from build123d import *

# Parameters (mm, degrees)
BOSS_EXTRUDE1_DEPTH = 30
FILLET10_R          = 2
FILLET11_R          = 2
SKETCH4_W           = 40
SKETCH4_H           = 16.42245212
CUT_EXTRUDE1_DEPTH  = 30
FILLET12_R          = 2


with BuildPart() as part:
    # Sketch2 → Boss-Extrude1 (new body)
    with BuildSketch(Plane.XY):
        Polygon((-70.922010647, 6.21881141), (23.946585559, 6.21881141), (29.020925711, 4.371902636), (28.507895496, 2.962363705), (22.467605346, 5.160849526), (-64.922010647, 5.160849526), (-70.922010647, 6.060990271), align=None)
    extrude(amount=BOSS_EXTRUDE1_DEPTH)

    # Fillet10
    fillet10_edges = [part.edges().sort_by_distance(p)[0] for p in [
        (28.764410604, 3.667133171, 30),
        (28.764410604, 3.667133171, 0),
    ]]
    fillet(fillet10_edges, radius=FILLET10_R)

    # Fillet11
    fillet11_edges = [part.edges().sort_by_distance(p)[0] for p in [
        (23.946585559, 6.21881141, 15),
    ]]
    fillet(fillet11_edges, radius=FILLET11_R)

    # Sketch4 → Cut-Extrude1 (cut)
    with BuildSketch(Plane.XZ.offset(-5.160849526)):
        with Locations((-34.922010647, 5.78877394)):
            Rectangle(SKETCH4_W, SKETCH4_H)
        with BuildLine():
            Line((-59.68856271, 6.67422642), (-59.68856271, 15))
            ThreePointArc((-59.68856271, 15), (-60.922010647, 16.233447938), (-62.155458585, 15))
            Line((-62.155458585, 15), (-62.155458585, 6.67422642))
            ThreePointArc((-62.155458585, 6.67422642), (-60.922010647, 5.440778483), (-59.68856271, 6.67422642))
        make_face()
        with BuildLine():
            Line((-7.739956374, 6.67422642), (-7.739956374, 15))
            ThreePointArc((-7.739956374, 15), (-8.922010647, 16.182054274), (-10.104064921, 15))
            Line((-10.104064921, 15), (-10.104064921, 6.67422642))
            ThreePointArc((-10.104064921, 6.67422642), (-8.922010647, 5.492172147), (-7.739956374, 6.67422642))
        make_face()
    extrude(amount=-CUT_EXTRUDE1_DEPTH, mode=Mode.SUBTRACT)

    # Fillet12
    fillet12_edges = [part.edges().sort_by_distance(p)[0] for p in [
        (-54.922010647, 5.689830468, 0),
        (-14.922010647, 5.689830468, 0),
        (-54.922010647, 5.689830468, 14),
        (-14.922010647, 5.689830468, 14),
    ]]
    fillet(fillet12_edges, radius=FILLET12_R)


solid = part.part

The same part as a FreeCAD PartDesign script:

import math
import FreeCAD as App
import Part
import Sketcher
Q = App.Units.Quantity


def edges_at(feature, points):
    """Names of the edges that pass closest to the given points."""
    edges = feature.Shape.Edges
    near = lambda p: min(range(len(edges)), key=lambda i: edges[i].distToShape(Part.Vertex(*p))[0])
    return sorted({f"Edge{near(p) + 1}" for p in points})

doc = App.newDocument("Part")
body = doc.addObject("PartDesign::Body", "Body")

sketch1 = doc.addObject("Sketcher::SketchObject", "Sketch")
body.addObject(sketch1)
sketch1.AttachmentSupport = (doc.XY_Plane, [""])
sketch1.MapMode = "FlatFace"
sketch1.addGeometry(Part.LineSegment(App.Vector(23.95, 6.22, 0), App.Vector(-70.92, 6.22, 0)), False)
sketch1.addGeometry(Part.LineSegment(App.Vector(-70.92, 6.22, 0), App.Vector(-70.92, 6.06, 0)), False)
sketch1.addGeometry(Part.LineSegment(App.Vector(-70.92, 6.06, 0), App.Vector(-64.92, 5.16, 0)), False)
sketch1.addGeometry(Part.LineSegment(App.Vector(-64.92, 5.16, 0), App.Vector(22.47, 5.16, 0)), False)
sketch1.addGeometry(Part.LineSegment(App.Vector(22.47, 5.16, 0), App.Vector(28.51, 2.96, 0)), False)
sketch1.addGeometry(Part.LineSegment(App.Vector(28.51, 2.96, 0), App.Vector(29.02, 4.37, 0)), False)
sketch1.addGeometry(Part.LineSegment(App.Vector(29.02, 4.37, 0), App.Vector(23.95, 6.22, 0)), False)
sketch1.addConstraint(Sketcher.Constraint("Coincident", 0, 2, 1, 1))
sketch1.addConstraint(Sketcher.Constraint("Coincident", 1, 2, 2, 1))
sketch1.addConstraint(Sketcher.Constraint("Coincident", 2, 2, 3, 1))
sketch1.addConstraint(Sketcher.Constraint("Coincident", 3, 2, 4, 1))
sketch1.addConstraint(Sketcher.Constraint("Coincident", 4, 2, 5, 1))
sketch1.addConstraint(Sketcher.Constraint("Coincident", 5, 2, 6, 1))
sketch1.addConstraint(Sketcher.Constraint("Coincident", 6, 2, 0, 1))
sketch1.addConstraint(Sketcher.Constraint("Horizontal", 0))
sketch1.addConstraint(Sketcher.Constraint("Vertical", 1))
sketch1.addConstraint(Sketcher.Constraint("Horizontal", 3))
sketch1.addConstraint(Sketcher.Constraint("Perpendicular", 4, 5))
sketch1.addConstraint(Sketcher.Constraint("Perpendicular", 5, 6))
sketch1.addConstraint(Sketcher.Constraint("Angle", 4, Q("-20 deg")))
sketch1.addConstraint(Sketcher.Constraint("DistanceX", 1, 2, 2, 2, Q("6 mm")))
sketch1.addConstraint(Sketcher.Constraint("Distance", 5, Q("1.5 mm")))
sketch1.addConstraint(Sketcher.Constraint("Distance", 6, Q("5.4 mm")))
sketch1.addConstraint(Sketcher.Constraint("DistanceY", 1, 2, 1, 1, Q("0.157821 mm")))
sketch1.addConstraint(Sketcher.Constraint("DistanceX", 0, 2, 0, 1, Q("94.868596 mm")))
sketch1.addConstraint(Sketcher.Constraint("DistanceX", 3, 1, 3, 2, Q("87.389616 mm")))
sketch1.addConstraint(Sketcher.Constraint("DistanceX", 0, 2, -1, 1, Q("70.922011 mm")))
sketch1.addConstraint(Sketcher.Constraint("DistanceY", -1, 1, 0, 2, Q("6.218811 mm")))
pad1 = doc.addObject("PartDesign::Pad", "Pad")
body.addObject(pad1)
pad1.Profile = sketch1
pad1.Length = 30
doc.recompute()

fillet = doc.addObject("PartDesign::Fillet", "Fillet")
body.addObject(fillet)
fillet.Base = (pad1, edges_at(pad1, [(28.764, 3.667, 30), (28.764, 3.667, 0)]))
fillet.Radius = 2
doc.recompute()

fillet2 = doc.addObject("PartDesign::Fillet", "Fillet001")
body.addObject(fillet2)
fillet2.Base = (fillet, edges_at(fillet, [(23.947, 6.219, 15)]))
fillet2.Radius = 2

sketch2 = doc.addObject("Sketcher::SketchObject", "Sketch001")
body.addObject(sketch2)
sketch2.AttachmentSupport = (doc.XZ_Plane, [""])
sketch2.MapMode = "FlatFace"
sketch2.AttachmentOffset = App.Placement(App.Vector(0, 0, -5.16085), App.Rotation())
sketch2.addGeometry(Part.LineSegment(App.Vector(-54.9, 14, 0), App.Vector(-54.9, -2.4, 0)), False)
sketch2.addGeometry(Part.LineSegment(App.Vector(-54.9, -2.4, 0), App.Vector(-14.9, -2.4, 0)), False)
sketch2.addGeometry(Part.LineSegment(App.Vector(-14.9, -2.4, 0), App.Vector(-14.9, 14, 0)), False)
sketch2.addGeometry(Part.LineSegment(App.Vector(-14.9, 14, 0), App.Vector(-54.9, 14, 0)), False)
sketch2.addGeometry(Part.LineSegment(App.Vector(-59.7, 6.7, 0), App.Vector(-59.7, 15, 0)), False)
sketch2.addGeometry(Part.ArcOfCircle(Part.Circle(App.Vector(-60.9, 15, 0), App.Vector(0, 0, 1), 1.2), math.radians(0), math.radians(180)), False)
sketch2.addGeometry(Part.LineSegment(App.Vector(-62.2, 15, 0), App.Vector(-62.2, 6.7, 0)), False)
sketch2.addGeometry(Part.ArcOfCircle(Part.Circle(App.Vector(-60.9, 6.7, 0), App.Vector(0, 0, 1), 1.2), math.radians(-180), math.radians(0)), False)
sketch2.addGeometry(Part.LineSegment(App.Vector(-7.7, 6.7, 0), App.Vector(-7.7, 15, 0)), False)
sketch2.addGeometry(Part.ArcOfCircle(Part.Circle(App.Vector(-8.9, 15, 0), App.Vector(0, 0, 1), 1.2), math.radians(0), math.radians(180)), False)
sketch2.addGeometry(Part.LineSegment(App.Vector(-10.1, 15, 0), App.Vector(-10.1, 6.7, 0)), False)
sketch2.addGeometry(Part.ArcOfCircle(Part.Circle(App.Vector(-8.9, 6.7, 0), App.Vector(0, 0, 1), 1.2), math.radians(-180), math.radians(0)), False)
sketch2.addConstraint(Sketcher.Constraint("Coincident", 0, 2, 1, 1))
sketch2.addConstraint(Sketcher.Constraint("Coincident", 1, 2, 2, 1))
sketch2.addConstraint(Sketcher.Constraint("Coincident", 2, 2, 3, 1))
sketch2.addConstraint(Sketcher.Constraint("Coincident", 3, 2, 0, 1))
sketch2.addConstraint(Sketcher.Constraint("Tangent", 4, 2, 5, 1))
sketch2.addConstraint(Sketcher.Constraint("Tangent", 5, 2, 6, 1))
sketch2.addConstraint(Sketcher.Constraint("Tangent", 6, 2, 7, 1))
sketch2.addConstraint(Sketcher.Constraint("Tangent", 7, 2, 4, 1))
sketch2.addConstraint(Sketcher.Constraint("Tangent", 8, 2, 9, 1))
sketch2.addConstraint(Sketcher.Constraint("Tangent", 9, 2, 10, 1))
sketch2.addConstraint(Sketcher.Constraint("Tangent", 10, 2, 11, 1))
sketch2.addConstraint(Sketcher.Constraint("Tangent", 11, 2, 8, 1))
sketch2.addConstraint(Sketcher.Constraint("Vertical", 0))
sketch2.addConstraint(Sketcher.Constraint("Horizontal", 1))
sketch2.addConstraint(Sketcher.Constraint("Vertical", 2))
sketch2.addConstraint(Sketcher.Constraint("Horizontal", 3))
sketch2.addConstraint(Sketcher.Constraint("Vertical", 4))
sketch2.addConstraint(Sketcher.Constraint("Vertical", 6))
sketch2.addConstraint(Sketcher.Constraint("Vertical", 8))
sketch2.addConstraint(Sketcher.Constraint("Vertical", 10))
sketch2.addConstraint(Sketcher.Constraint("Horizontal", 5, 3, 9, 3))
sketch2.addConstraint(Sketcher.Constraint("Horizontal", 7, 3, 11, 3))
sketch2.addConstraint(Sketcher.Constraint("DistanceX", 1, 1, 1, 2, Q("40 mm")))
sketch2.addConstraint(Sketcher.Constraint("DistanceY", -1, 1, 5, 3, Q("15 mm")))
sketch2.addConstraint(Sketcher.Constraint("DistanceY", -1, 1, 2, 2, Q("14 mm")))
sketch2.addConstraint(Sketcher.Constraint("DistanceX", 5, 3, 9, 3, Q("52 mm")))
sketch2.addConstraint(Sketcher.Constraint("DistanceX", 7, 3, 0, 2, Q("6 mm")))
sketch2.addConstraint(Sketcher.Constraint("Radius", 5, Q("1.233448 mm")))
sketch2.addConstraint(Sketcher.Constraint("Radius", 9, Q("1.182054 mm")))
sketch2.addConstraint(Sketcher.Constraint("DistanceY", 0, 2, 0, 1, Q("16.422452 mm")))
sketch2.addConstraint(Sketcher.Constraint("DistanceY", 4, 1, 4, 2, Q("8.325774 mm")))
sketch2.addConstraint(Sketcher.Constraint("DistanceX", 5, 3, -1, 1, Q("60.922011 mm")))
pocket1 = doc.addObject("PartDesign::Pocket", "Pocket")
body.addObject(pocket1)
pocket1.Profile = sketch2
pocket1.Length = 30
doc.recompute()

fillet3 = doc.addObject("PartDesign::Fillet", "Fillet002")
body.addObject(fillet3)
fillet3.Base = (pocket1, edges_at(pocket1, [
    (-54.922, 5.69, 0),
    (-14.922, 5.69, 0),
    (-54.922, 5.69, 14),
    (-14.922, 5.69, 14),
]))
fillet3.Radius = 2

doc.recompute()
